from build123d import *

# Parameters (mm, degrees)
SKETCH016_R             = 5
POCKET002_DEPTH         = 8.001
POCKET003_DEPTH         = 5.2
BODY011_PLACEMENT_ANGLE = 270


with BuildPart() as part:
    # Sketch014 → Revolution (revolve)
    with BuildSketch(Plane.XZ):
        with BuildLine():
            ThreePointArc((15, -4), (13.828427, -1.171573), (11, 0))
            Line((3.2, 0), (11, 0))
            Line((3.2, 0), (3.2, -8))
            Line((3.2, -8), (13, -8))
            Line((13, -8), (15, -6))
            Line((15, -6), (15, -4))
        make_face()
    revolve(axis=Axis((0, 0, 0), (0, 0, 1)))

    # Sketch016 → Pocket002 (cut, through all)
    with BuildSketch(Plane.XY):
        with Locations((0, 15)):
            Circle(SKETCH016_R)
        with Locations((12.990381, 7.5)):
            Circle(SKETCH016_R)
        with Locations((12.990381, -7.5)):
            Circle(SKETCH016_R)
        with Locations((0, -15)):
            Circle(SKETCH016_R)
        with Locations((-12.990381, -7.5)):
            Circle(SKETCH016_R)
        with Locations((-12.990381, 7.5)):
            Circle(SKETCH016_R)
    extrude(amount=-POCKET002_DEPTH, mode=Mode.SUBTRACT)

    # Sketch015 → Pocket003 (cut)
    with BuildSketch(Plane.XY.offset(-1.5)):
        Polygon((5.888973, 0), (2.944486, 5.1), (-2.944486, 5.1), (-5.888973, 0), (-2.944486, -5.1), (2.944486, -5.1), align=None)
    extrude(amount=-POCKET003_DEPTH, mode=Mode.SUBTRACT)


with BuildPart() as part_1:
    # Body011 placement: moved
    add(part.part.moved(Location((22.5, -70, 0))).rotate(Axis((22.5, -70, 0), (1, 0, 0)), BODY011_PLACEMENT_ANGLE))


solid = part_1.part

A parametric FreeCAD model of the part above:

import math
import FreeCAD as App
import Part
import Sketcher
Q = App.Units.Quantity


def add_polygon(sketch, points):
    """Adds a closed chain of lines whose ends are joined by coincident constraints."""
    first, n = sketch.GeometryCount, len(points)
    for a, b in zip(points, points[1:] + points[:1]):
        sketch.addGeometry(Part.LineSegment(App.Vector(*a, 0), App.Vector(*b, 0)), False)
    for i in range(n):
        sketch.addConstraint(Sketcher.Constraint("Coincident", first + i, 2, first + (i + 1) % n, 1))

doc = App.newDocument("Part")
body = doc.addObject("PartDesign::Body", "Body")

sketch1 = doc.addObject("Sketcher::SketchObject", "Sketch")
body.addObject(sketch1)
sketch1.AttachmentSupport = (doc.XZ_Plane, [""])
sketch1.MapMode = "FlatFace"
sketch1.addGeometry([
    Part.ArcOfCircle(Part.Circle(App.Vector(11, -4, 0), App.Vector(0, 0, 1), 4), math.radians(0), math.radians(90)),
    Part.LineSegment(App.Vector(11, 0, 0), App.Vector(3.2, 0, 0)),
    Part.LineSegment(App.Vector(3.2, 0, 0), App.Vector(3.2, -8, 0)),
    Part.LineSegment(App.Vector(3.2, -8, 0), App.Vector(13, -8, 0)),
    Part.LineSegment(App.Vector(13, -8, 0), App.Vector(15, -6, 0)),
    Part.LineSegment(App.Vector(15, -6, 0), App.Vector(15, -4, 0)),
], False)
sketch1.addConstraint([
    Sketcher.Constraint("Tangent", 0, 2, 1, 1),
    Sketcher.Constraint("Coincident", 1, 2, 2, 1),
    Sketcher.Constraint("Coincident", 2, 2, 3, 1),
    Sketcher.Constraint("Coincident", 3, 2, 4, 1),
    Sketcher.Constraint("Coincident", 4, 2, 5, 1),
    Sketcher.Constraint("Tangent", 5, 2, 0, 1),
    Sketcher.Constraint("Horizontal", 1),
    Sketcher.Constraint("Vertical", 2),
    Sketcher.Constraint("Horizontal", 3),
    Sketcher.Constraint("Vertical", 5),
    Sketcher.Constraint("PointOnObject", 0, 2, -1),
    Sketcher.Constraint("Radius", 0, Q("4 mm")),
    Sketcher.Constraint("DistanceY", 2, 2, 2, 1, Q("8 mm")),
    Sketcher.Constraint("DistanceY", 5, 1, 5, 2, Q("2 mm")),
    Sketcher.Constraint("Angle", 4, Q("45 deg")),
    Sketcher.Constraint("DistanceX", 1, 2, 1, 1, Q("7.8 mm")),
    Sketcher.Constraint("DistanceX", -1, 1, 0, 3, Q("11 mm")),
])
revolution = doc.addObject("PartDesign::Revolution", "Revolution")
body.addObject(revolution)
revolution.Profile = sketch1
revolution.ReferenceAxis = (sketch1, ["V_Axis"])
revolution.Angle = 360

sketch2 = doc.addObject("Sketcher::SketchObject", "Sketch001")
body.addObject(sketch2)
sketch2.AttachmentSupport = (doc.XY_Plane, [""])
sketch2.MapMode = "FlatFace"
sketch2.addGeometry([
    Part.Circle(App.Vector(0, 15, 0), App.Vector(0, 0, 1), 5),
    Part.Circle(App.Vector(13, 8, 0), App.Vector(0, 0, 1), 5),
    Part.Circle(App.Vector(13, -8, 0), App.Vector(0, 0, 1), 5),
    Part.Circle(App.Vector(0, -15, 0), App.Vector(0, 0, 1), 5),
    Part.Circle(App.Vector(-13, -8, 0), App.Vector(0, 0, 1), 5),
    Part.Circle(App.Vector(-13, 8, 0), App.Vector(0, 0, 1), 5),
], False)
sketch2.addConstraint([
    Sketcher.Constraint("Equal", 0, 1),
    Sketcher.Constraint("Equal", 1, 2),
    Sketcher.Constraint("Equal", 2, 3),
    Sketcher.Constraint("Equal", 3, 4),
    Sketcher.Constraint("Equal", 4, 5),
    Sketcher.Constraint("Symmetric", 0, 3, 3, 3, -1, 1),
    Sketcher.Constraint("Symmetric", 1, 3, 4, 3, -1, 1),
    Sketcher.Constraint("Symmetric", 2, 3, 5, 3, -1, 1),
    Sketcher.Constraint("Symmetric", 2, 3, 4, 3, -2),
    Sketcher.Constraint("PointOnObject", 0, 3, -2),
    Sketcher.Constraint("Diameter", 0, Q("10 mm")),
    Sketcher.Constraint("DistanceY", -1, 1, 0, 3, Q("15 mm")),
    Sketcher.Constraint("DistanceY", 2, 3, 1, 3, Q("15 mm")),
    Sketcher.Constraint("DistanceX", -1, 1, 1, 3, Q("12.990381 mm")),
])
pocket1 = doc.addObject("PartDesign::Pocket", "Pocket")
body.addObject(pocket1)
pocket1.Profile = sketch2
pocket1.Type = "ThroughAll"

sketch3 = doc.addObject("Sketcher::SketchObject", "Sketch002")
body.addObject(sketch3)
sketch3.AttachmentSupport = (doc.XY_Plane, [""])
sketch3.MapMode = "FlatFace"
sketch3.AttachmentOffset = App.Placement(App.Vector(0, 0, -1.5), App.Rotation())
add_polygon(sketch3, [(6, 0), (3, 5), (-3, 5), (-6, 0), (-3, -5), (3, -5)])
sketch3.addConstraint([
    Sketcher.Constraint("Horizontal", 1),
    Sketcher.Constraint("Horizontal", 4),
    Sketcher.Constraint("Symmetric", 0, 2, 3, 2, -1, 1),
    Sketcher.Constraint("Symmetric", 2, 2, 5, 2, -1, 1),
    Sketcher.Constraint("PointOnObject", 2, 2, -1),
    Sketcher.Constraint("Parallel", 2, 5),
    Sketcher.Constraint("Vertical", 1, 2, 3, 2),
    Sketcher.Constraint("Angle", 0, Q("120.000005 deg")),
    Sketcher.Constraint("DistanceY", -1, 1, 0, 2, Q("5.1 mm")),
    Sketcher.Constraint("DistanceX", 1, 2, 1, 1, Q("5.888972 mm")),
])
pocket2 = doc.addObject("PartDesign::Pocket", "Pocket001")
body.addObject(pocket2)
pocket2.Profile = sketch3
pocket2.Length = 5.2
body2 = doc.addObject("PartDesign::Body", "Body001")
doc.recompute()

body.Placement = App.Placement(App.Vector(22.5, -70, 0), App.Rotation(App.Vector(1, 0, 0), 270))
boolean = doc.addObject("PartDesign::Boolean", "Boolean")
body2.addObject(boolean)
boolean.Type = "Fuse"
boolean.addObjects([body])

doc.recompute()
